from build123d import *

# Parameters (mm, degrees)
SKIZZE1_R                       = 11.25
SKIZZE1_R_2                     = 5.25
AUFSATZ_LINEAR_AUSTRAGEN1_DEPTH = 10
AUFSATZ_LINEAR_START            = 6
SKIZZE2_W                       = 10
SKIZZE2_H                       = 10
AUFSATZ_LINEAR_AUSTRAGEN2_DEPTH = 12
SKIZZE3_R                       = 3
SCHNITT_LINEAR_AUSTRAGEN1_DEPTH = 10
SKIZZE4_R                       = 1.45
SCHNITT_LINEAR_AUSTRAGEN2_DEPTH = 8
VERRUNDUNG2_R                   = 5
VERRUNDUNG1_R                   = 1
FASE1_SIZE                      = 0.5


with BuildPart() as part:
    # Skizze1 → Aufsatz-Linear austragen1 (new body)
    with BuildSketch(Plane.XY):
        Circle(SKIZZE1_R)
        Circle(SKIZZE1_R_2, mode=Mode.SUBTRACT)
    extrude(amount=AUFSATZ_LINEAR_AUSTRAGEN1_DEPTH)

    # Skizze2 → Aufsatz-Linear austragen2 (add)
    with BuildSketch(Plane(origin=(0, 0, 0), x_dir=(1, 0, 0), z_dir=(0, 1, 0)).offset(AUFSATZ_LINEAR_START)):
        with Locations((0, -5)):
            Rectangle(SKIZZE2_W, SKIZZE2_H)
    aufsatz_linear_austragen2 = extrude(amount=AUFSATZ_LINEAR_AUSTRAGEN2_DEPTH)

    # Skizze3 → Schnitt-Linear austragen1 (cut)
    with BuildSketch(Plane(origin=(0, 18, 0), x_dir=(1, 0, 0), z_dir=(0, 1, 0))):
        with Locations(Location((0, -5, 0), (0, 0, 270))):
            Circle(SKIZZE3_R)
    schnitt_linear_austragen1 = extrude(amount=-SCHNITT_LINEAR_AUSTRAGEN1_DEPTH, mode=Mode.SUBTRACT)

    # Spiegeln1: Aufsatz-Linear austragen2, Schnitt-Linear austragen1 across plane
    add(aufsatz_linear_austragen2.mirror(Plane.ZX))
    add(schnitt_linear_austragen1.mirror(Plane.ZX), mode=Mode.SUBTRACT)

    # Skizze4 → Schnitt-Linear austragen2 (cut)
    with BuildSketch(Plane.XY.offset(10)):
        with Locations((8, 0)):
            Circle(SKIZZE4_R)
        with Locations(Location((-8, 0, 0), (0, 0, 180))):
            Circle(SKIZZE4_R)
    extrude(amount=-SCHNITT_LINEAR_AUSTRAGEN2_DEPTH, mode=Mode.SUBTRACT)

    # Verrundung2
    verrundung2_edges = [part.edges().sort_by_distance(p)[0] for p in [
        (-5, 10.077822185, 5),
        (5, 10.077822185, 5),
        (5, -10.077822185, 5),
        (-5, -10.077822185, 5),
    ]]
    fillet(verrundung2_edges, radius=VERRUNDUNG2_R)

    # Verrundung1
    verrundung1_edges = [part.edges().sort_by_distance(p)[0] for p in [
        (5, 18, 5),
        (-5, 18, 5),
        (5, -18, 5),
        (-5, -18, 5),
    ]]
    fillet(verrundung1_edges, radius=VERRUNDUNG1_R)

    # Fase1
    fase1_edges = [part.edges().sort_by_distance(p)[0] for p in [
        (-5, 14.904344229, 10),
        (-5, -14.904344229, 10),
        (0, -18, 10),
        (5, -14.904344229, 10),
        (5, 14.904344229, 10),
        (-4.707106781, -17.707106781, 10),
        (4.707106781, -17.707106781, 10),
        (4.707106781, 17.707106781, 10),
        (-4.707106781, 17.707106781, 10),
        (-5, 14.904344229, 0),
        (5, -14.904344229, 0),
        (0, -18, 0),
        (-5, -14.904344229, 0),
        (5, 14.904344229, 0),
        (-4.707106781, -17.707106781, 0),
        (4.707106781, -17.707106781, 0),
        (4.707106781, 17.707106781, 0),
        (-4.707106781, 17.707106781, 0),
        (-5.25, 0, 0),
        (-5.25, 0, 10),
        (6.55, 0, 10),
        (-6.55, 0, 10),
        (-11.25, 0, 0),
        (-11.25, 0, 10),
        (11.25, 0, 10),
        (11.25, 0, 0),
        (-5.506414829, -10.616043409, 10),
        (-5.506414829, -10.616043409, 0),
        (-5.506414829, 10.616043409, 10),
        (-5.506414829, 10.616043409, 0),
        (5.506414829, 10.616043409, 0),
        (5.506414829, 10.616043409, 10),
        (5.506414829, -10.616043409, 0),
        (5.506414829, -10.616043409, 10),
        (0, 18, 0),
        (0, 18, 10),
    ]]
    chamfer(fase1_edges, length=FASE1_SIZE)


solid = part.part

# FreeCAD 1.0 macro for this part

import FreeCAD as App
import Part
import Sketcher
Q = App.Units.Quantity


def edges_at(feature, points):
    """Names of the edges that pass closest to the given points."""
    edges = feature.Shape.Edges
    near = lambda p: min(range(len(edges)), key=lambda i: edges[i].distToShape(Part.Vertex(*p))[0])
    return sorted({f"Edge{near(p) + 1}" for p in points})

doc = App.newDocument("Part")
body = doc.addObject("PartDesign::Body", "Body")

# Sketch on XY plane
sketch1 = doc.addObject("Sketcher::SketchObject", "Sketch")
body.addObject(sketch1)
sketch1.AttachmentSupport = (doc.XY_Plane, [""])
sketch1.MapMode = "FlatFace"
sketch1.addGeometry([
    Part.Circle(App.Vector(0, 0, 0), App.Vector(0, 0, 1), 11.25),
    Part.Circle(App.Vector(0, 0, 0), App.Vector(0, 0, 1), 5.25),
], False)
sketch1.addConstraint([
    Sketcher.Constraint("Coincident", 0, 3, -1, 1),
    Sketcher.Constraint("Coincident", 1, 3, -1, 1),
    Sketcher.Constraint("Diameter", 0, Q("22.5 mm")),
    Sketcher.Constraint("Diameter", 1, Q("10.5 mm")),
])
pad1 = doc.addObject("PartDesign::Pad", "Pad")
body.addObject(pad1)
pad1.Profile = sketch1
pad1.Length = 10

# Sketch on XZ plane
sketch2 = doc.addObject("Sketcher::SketchObject", "Sketch001")
body.addObject(sketch2)
sketch2.AttachmentSupport = (doc.XZ_Plane, [""])
sketch2.MapMode = "FlatFace"
sketch2.AttachmentOffset = App.Placement(App.Vector(0, 0, -6), App.Rotation())
sketch2.addGeometry([
    Part.LineSegment(App.Vector(-5, 0, 0), App.Vector(-5, 10, 0)),
    Part.LineSegment(App.Vector(-5, 10, 0), App.Vector(5, 10, 0)),
    Part.LineSegment(App.Vector(5, 10, 0), App.Vector(5, 0, 0)),
    Part.LineSegment(App.Vector(5, 0, 0), App.Vector(-5, 0, 0)),
], False)
sketch2.addConstraint([
    Sketcher.Constraint("Coincident", 0, 2, 1, 1),
    Sketcher.Constraint("Coincident", 1, 2, 2, 1),
    Sketcher.Constraint("Coincident", 2, 2, 3, 1),
    Sketcher.Constraint("Coincident", 3, 2, 0, 1),
    Sketcher.Constraint("Vertical", 0),
    Sketcher.Constraint("Horizontal", 1),
    Sketcher.Constraint("Vertical", 2),
    Sketcher.Constraint("Horizontal", 3),
    Sketcher.Constraint("Symmetric", 2, 2, 3, 2, -1, 1),
    Sketcher.Constraint("Equal", 3, 0),
    Sketcher.Constraint("DistanceX", 1, 1, 1, 2, Q("10 mm")),
])
pad2 = doc.addObject("PartDesign::Pad", "Pad001")
body.addObject(pad2)
pad2.Profile = sketch2
pad2.Length = 12
pad2.Reversed = True

# Sketch on XZ plane
sketch3 = doc.addObject("Sketcher::SketchObject", "Sketch002")
body.addObject(sketch3)
sketch3.AttachmentSupport = (doc.XZ_Plane, [""])
sketch3.MapMode = "FlatFace"
sketch3.AttachmentOffset = App.Placement(App.Vector(0, 0, -18), App.Rotation())
sketch3.addGeometry(Part.Circle(App.Vector(0, 5, 0), App.Vector(0, 0, 1), 3), False)
sketch3.addConstraint([
    Sketcher.Constraint("PointOnObject", 0, 3, -2),
    Sketcher.Constraint("Diameter", 0, Q("6 mm")),
    Sketcher.Constraint("DistanceY", -1, 1, 0, 3, Q("5 mm")),
])
pocket1 = doc.addObject("PartDesign::Pocket", "Pocket")
body.addObject(pocket1)
pocket1.Profile = sketch3
pocket1.Length = 10
pocket1.Reversed = True
doc.recompute()

mirrored = doc.addObject("PartDesign::Mirrored", "Mirrored")
body.addObject(mirrored)
mirrored.Originals = [pad2, pocket1]
mirrored.MirrorPlane = (doc.XZ_Plane, [""])
body.Tip = mirrored

# Sketch on XY plane
sketch4 = doc.addObject("Sketcher::SketchObject", "Sketch003")
body.addObject(sketch4)
sketch4.AttachmentSupport = (doc.XY_Plane, [""])
sketch4.MapMode = "FlatFace"
sketch4.AttachmentOffset = App.Placement(App.Vector(0, 0, 10), App.Rotation())
sketch4.addGeometry([
    Part.Circle(App.Vector(8, 0, 0), App.Vector(0, 0, 1), 1.45),
    Part.Circle(App.Vector(-8, 0, 0), App.Vector(0, 0, 1), 1.45),
], False)
sketch4.addConstraint([
    Sketcher.Constraint("Equal", 0, 1),
    Sketcher.Constraint("Symmetric", 0, 3, 1, 3, -1, 1),
    Sketcher.Constraint("PointOnObject", 0, 3, -1),
    Sketcher.Constraint("Diameter", 0, Q("2.9 mm")),
    Sketcher.Constraint("DistanceX", -1, 1, 0, 3, Q("8 mm")),
])
pocket2 = doc.addObject("PartDesign::Pocket", "Pocket001")
body.addObject(pocket2)
pocket2.Profile = sketch4
pocket2.Length = 8
doc.recompute()

fillet = doc.addObject("PartDesign::Fillet", "Fillet")
body.addObject(fillet)
fillet.Base = (pocket2, edges_at(pocket2, [
    (-5, 10.078, 5),
    (5, 10.078, 5),
    (5, -10.078, 5),
    (-5, -10.078, 5),
]))
fillet.Radius = 5
doc.recompute()

fillet2 = doc.addObject("PartDesign::Fillet", "Fillet001")
body.addObject(fillet2)
fillet2.Base = (fillet, edges_at(fillet, [
    (5, 18, 5),
    (-5, 18, 5),
    (5, -18, 5),
    (-5, -18, 5),
]))
fillet2.Radius = 1
doc.recompute()

chamfer = doc.addObject("PartDesign::Chamfer", "Chamfer")
body.addObject(chamfer)
chamfer.Base = (fillet2, edges_at(fillet2, [
    (-5, 14.904, 10),
    (-5, -14.904, 10),
    (0, -18, 10),
    (5, -14.904, 10),
    (5, 14.904, 10),
    (-4.707, -17.707, 10),
    (4.707, -17.707, 10),
    (4.707, 17.707, 10),
    (-4.707, 17.707, 10),
    (-5, 14.904, 0),
    (5, -14.904, 0),
    (0, -18, 0),
    (-5, -14.904, 0),
    (5, 14.904, 0),
    (-4.707, -17.707, 0),
    (4.707, -17.707, 0),
    (4.707, 17.707, 0),
    (-4.707, 17.707, 0),
    (-5.25, 0, 0),
    (-5.25, 0, 10),
    (6.55, 0, 10),
    (-6.55, 0, 10),
    (-11.25, 0, 0),
    (-11.25, 0, 10),
    (11.25, 0, 10),
    (11.25, 0, 0),
    (-5.506, -10.616, 10),
    (-5.506, -10.616, 0),
    (-5.506, 10.616, 10),
    (-5.506, 10.616, 0),
    (5.506, 10.616, 0),
    (5.506, 10.616, 10),
    (5.506, -10.616, 0),
    (5.506, -10.616, 10),
    (0, 18, 0),
    (0, 18, 10),
]))
chamfer.Size = 0.5

doc.recompute()
